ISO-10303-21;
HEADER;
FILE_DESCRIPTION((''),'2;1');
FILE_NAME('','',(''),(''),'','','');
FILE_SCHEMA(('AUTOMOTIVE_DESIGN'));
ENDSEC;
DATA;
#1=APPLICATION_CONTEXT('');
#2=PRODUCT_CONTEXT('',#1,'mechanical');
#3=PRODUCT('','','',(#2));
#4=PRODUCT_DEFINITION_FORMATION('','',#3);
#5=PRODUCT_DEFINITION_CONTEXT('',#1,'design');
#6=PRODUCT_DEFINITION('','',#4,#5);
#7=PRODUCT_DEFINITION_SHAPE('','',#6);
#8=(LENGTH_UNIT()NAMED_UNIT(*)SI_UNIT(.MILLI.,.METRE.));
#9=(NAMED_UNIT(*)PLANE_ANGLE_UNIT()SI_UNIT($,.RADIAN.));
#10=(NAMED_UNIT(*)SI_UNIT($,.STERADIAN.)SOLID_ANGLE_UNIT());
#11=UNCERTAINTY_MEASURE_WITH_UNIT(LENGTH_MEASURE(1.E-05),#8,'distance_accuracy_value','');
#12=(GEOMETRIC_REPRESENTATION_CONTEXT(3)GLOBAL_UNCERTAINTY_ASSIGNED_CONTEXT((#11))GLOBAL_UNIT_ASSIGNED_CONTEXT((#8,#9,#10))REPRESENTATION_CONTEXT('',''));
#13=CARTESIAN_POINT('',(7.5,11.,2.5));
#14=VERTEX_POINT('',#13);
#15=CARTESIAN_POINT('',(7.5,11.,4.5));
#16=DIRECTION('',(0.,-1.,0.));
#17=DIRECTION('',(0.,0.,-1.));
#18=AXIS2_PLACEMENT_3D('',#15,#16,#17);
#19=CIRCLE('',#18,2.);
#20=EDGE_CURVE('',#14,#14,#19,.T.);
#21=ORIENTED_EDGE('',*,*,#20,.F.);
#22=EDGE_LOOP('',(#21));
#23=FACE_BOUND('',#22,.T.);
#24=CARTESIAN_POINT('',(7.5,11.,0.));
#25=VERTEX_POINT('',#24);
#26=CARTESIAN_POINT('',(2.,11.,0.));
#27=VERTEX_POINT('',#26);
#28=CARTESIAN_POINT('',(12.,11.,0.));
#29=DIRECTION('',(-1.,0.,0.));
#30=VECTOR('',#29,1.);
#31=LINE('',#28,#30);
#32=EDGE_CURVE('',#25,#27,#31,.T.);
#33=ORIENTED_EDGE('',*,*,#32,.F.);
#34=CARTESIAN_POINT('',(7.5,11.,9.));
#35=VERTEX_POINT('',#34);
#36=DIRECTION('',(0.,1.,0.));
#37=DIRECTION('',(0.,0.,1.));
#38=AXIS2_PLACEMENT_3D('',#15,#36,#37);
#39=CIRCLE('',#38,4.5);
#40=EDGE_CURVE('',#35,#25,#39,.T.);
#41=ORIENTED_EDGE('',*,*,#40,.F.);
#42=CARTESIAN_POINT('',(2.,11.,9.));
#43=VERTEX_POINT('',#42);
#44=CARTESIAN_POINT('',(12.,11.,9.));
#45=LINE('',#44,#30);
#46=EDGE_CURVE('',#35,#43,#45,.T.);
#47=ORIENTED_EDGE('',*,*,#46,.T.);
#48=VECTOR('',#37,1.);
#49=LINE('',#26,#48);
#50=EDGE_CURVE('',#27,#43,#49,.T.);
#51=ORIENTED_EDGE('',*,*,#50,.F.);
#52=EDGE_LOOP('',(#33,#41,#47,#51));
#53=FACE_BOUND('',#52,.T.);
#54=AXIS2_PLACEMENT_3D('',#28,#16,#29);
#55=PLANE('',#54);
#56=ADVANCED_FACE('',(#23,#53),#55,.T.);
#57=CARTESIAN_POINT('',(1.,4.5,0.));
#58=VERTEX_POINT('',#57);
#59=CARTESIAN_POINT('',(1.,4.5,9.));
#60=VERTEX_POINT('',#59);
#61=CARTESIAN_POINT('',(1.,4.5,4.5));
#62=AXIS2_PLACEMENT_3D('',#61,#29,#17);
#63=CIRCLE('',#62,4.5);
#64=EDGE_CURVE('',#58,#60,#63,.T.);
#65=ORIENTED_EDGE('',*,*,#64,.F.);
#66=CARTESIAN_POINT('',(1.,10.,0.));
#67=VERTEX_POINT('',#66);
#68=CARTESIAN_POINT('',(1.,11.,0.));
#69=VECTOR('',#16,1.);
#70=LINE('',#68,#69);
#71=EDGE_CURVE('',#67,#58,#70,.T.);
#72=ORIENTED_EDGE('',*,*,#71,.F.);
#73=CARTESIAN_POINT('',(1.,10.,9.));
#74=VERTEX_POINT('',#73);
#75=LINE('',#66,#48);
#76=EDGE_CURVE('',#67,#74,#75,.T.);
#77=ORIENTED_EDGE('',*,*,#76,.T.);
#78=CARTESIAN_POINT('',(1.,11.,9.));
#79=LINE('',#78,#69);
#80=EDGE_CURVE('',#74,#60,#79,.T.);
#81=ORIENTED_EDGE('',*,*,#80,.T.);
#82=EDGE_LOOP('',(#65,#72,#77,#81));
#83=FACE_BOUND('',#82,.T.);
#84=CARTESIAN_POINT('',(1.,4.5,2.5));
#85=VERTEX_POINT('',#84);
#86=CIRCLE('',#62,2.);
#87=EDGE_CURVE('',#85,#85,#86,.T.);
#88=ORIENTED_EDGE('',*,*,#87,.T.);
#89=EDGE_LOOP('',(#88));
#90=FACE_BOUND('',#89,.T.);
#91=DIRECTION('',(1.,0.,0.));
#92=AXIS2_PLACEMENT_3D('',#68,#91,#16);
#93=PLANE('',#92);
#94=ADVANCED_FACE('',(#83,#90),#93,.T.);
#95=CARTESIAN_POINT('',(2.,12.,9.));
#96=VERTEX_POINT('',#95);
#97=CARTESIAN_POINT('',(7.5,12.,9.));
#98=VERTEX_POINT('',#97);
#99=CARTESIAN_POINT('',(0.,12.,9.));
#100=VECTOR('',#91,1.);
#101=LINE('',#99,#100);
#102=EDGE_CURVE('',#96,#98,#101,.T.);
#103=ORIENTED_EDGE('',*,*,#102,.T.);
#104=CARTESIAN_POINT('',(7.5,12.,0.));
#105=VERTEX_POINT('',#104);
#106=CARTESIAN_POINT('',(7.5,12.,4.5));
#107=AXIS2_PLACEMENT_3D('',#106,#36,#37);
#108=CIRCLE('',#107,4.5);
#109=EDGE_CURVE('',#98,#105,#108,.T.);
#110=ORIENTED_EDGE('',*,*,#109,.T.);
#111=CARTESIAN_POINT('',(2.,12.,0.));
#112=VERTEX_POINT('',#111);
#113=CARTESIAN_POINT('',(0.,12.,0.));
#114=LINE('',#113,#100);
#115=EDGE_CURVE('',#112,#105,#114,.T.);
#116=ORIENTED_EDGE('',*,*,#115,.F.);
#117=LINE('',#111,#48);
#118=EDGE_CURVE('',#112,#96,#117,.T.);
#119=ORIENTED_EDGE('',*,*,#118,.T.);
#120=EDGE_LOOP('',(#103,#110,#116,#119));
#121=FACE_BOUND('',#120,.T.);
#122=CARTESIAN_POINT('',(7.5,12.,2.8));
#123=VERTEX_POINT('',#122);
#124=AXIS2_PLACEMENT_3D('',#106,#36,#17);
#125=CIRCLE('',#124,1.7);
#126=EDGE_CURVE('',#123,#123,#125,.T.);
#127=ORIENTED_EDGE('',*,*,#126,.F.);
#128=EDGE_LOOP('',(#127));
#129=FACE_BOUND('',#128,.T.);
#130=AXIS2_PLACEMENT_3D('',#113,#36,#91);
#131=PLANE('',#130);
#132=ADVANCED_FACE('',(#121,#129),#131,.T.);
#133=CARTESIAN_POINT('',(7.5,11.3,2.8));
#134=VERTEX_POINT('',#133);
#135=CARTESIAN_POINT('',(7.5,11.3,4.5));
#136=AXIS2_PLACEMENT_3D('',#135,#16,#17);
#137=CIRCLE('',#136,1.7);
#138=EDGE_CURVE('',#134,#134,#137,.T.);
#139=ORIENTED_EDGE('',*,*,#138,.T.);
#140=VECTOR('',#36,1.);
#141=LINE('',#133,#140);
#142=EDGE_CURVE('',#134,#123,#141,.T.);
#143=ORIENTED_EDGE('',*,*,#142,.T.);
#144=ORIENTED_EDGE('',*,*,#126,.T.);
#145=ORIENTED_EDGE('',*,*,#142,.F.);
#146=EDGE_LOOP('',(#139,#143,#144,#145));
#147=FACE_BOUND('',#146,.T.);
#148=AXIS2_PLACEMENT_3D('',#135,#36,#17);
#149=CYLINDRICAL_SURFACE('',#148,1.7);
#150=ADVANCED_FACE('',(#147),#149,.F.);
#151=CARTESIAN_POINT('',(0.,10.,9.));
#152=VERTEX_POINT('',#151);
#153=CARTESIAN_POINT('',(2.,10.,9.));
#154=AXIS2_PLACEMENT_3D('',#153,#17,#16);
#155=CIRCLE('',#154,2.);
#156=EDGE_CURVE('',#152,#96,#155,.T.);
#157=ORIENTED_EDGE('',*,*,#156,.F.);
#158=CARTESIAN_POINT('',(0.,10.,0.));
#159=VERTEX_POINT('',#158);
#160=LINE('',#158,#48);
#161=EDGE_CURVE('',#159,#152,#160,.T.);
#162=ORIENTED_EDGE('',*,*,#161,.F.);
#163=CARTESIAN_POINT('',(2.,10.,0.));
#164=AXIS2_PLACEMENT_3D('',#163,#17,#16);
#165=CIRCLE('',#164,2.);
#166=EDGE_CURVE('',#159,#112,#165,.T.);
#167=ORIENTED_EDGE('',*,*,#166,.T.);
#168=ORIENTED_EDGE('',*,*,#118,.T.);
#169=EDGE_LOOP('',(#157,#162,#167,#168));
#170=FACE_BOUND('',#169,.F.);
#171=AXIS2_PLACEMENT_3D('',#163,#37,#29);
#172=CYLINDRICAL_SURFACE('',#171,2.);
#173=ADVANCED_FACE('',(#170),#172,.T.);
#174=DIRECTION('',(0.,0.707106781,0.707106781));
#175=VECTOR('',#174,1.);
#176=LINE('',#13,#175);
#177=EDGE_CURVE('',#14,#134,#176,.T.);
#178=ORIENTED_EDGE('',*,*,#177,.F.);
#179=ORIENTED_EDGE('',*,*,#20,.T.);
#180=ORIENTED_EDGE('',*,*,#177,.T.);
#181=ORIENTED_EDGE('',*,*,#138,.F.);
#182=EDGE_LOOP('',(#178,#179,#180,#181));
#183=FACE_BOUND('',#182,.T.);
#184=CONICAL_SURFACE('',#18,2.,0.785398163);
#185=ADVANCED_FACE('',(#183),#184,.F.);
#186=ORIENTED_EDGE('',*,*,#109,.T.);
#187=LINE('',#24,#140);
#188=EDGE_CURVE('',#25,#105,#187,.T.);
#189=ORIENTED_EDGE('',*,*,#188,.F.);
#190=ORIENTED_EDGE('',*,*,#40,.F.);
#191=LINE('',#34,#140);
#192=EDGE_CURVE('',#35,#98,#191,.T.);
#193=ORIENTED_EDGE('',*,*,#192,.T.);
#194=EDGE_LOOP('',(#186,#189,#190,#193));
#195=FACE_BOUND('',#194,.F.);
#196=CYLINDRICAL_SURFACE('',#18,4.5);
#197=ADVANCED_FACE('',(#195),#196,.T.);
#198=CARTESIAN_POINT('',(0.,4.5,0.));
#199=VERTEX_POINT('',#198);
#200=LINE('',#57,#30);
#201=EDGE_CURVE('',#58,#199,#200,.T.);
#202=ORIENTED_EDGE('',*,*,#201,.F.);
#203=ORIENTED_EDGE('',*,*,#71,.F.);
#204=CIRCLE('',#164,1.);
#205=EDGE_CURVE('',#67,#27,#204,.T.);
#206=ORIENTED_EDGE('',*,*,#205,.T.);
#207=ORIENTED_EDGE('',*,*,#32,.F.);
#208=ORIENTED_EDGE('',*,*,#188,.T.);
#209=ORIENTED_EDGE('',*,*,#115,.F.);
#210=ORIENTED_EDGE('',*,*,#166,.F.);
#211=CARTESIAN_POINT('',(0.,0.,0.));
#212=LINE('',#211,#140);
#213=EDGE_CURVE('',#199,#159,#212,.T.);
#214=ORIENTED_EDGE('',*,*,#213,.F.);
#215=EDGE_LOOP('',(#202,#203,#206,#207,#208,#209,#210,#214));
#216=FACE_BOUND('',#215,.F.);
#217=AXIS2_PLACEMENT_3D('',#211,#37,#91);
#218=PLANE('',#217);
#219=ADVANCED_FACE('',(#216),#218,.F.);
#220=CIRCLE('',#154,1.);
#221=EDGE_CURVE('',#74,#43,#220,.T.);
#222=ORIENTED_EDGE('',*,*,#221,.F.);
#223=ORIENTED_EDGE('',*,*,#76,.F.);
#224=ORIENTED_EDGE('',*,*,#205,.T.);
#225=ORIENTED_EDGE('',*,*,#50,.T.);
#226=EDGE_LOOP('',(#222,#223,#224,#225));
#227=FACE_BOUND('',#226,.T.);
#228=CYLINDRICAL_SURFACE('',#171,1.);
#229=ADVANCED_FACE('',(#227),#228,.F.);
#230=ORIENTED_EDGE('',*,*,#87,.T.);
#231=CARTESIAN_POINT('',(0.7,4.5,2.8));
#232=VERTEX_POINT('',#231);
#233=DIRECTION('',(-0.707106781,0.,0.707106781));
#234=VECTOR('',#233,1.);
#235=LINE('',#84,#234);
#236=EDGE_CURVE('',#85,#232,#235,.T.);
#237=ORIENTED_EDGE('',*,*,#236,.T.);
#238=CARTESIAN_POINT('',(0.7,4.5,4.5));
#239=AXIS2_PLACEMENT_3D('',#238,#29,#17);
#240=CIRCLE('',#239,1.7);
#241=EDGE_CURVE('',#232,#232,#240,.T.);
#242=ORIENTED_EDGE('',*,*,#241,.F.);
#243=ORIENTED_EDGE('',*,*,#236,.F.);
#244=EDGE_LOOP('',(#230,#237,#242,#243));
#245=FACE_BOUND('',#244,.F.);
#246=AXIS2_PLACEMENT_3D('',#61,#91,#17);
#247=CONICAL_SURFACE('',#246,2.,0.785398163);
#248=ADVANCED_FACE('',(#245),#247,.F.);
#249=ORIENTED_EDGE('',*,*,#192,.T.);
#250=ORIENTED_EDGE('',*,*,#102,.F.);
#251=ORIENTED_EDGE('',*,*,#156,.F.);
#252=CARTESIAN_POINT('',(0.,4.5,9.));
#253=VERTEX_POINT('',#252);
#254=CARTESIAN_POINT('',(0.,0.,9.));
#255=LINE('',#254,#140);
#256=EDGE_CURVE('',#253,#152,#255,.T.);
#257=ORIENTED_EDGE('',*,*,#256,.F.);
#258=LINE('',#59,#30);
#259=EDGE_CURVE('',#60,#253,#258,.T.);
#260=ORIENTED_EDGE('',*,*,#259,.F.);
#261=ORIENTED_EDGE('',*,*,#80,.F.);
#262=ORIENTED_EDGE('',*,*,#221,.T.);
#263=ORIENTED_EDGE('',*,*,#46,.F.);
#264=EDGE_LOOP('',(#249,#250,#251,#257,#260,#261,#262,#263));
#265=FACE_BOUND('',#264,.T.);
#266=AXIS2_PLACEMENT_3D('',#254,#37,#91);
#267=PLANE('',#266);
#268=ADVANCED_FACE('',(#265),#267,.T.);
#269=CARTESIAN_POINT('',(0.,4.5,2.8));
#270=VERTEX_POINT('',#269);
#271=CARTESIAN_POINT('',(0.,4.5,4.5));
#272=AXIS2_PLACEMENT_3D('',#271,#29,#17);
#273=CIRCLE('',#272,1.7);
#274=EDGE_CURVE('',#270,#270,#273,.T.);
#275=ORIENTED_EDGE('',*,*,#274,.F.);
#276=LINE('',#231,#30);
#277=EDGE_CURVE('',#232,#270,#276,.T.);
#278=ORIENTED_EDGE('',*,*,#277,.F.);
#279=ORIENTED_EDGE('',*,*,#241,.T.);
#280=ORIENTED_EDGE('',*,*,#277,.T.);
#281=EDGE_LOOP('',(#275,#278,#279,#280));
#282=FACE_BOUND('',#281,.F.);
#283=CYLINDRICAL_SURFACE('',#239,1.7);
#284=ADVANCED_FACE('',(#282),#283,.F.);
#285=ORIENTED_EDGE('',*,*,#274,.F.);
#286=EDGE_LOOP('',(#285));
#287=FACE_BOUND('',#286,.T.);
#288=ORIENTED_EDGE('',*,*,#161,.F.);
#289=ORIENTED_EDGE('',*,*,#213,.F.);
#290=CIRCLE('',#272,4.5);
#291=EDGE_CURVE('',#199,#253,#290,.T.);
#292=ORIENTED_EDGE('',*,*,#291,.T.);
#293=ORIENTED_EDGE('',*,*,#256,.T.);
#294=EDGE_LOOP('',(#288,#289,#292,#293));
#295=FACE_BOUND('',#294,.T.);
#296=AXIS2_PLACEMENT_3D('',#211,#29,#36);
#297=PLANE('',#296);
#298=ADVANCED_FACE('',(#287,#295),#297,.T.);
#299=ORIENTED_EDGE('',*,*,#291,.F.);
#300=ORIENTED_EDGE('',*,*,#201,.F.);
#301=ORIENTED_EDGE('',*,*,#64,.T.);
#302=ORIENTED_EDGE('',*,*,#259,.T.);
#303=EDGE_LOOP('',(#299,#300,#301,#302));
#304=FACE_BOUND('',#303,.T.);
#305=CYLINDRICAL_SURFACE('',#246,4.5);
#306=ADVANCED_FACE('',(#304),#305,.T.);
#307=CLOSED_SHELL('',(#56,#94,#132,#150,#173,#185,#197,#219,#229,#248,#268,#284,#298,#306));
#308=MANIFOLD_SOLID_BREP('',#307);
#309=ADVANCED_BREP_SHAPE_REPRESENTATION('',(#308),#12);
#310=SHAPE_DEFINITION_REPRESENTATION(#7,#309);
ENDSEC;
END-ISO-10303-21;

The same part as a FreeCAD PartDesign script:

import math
import FreeCAD as App
import Part
import Sketcher


def edges_at(feature, points):
    """Names of the edges that pass closest to the given points."""
    edges = feature.Shape.Edges
    near = lambda p: min(range(len(edges)), key=lambda i: edges[i].distToShape(Part.Vertex(*p))[0])
    return sorted({f"Edge{near(p) + 1}" for p in points})

doc = App.newDocument("Part")
params = doc.addObject("Spreadsheet::Sheet", "Params")
for row, (alias, value) in enumerate([
    ("sketch1_width", "1 mm"),
    ("sketch1_width2", "12 mm"),
    ("pad1_length", "9 mm"),
    ("sketch2_diameter", "3.4 mm"),
    ("hole_diameter", "3.4 mm"),
    ("hole_csink_diameter", "4 mm"),
    ("sketch3_radius", "4.5 mm"),
    ("pocket1_length", "16.002 mm"),
    ("fillet_radius", "2 mm"),
    ("fillet2_radius", "1 mm"),
], start=1):
    params.set(f"A{row}", alias)
    params.set(f"B{row}", "=" + value)
    params.setAlias(f"B{row}", alias)

body = doc.addObject("PartDesign::Body", "Body")

sketch1 = body.newObject("Sketcher::SketchObject", "Sketch")
sketch1.AttachmentSupport = (doc.getObject("XY_Plane"), [""])
sketch1.MapMode = "FlatFace"
sketch1.addGeometry(Part.LineSegment(App.Vector(0, 12, 0), App.Vector(0, 0, 0)), False)
sketch1.addGeometry(Part.LineSegment(App.Vector(0, 0, 0), App.Vector(1, 0, 0)), False)
sketch1.addGeometry(Part.LineSegment(App.Vector(1, 0, 0), App.Vector(1, 11, 0)), False)
sketch1.addGeometry(Part.LineSegment(App.Vector(1, 11, 0), App.Vector(12, 11, 0)), False)
sketch1.addGeometry(Part.LineSegment(App.Vector(12, 11, 0), App.Vector(12, 12, 0)), False)
sketch1.addGeometry(Part.LineSegment(App.Vector(12, 12, 0), App.Vector(0, 12, 0)), False)
sketch1.addConstraint(Sketcher.Constraint("Coincident", 0, 2, 1, 1))
sketch1.addConstraint(Sketcher.Constraint("Coincident", 1, 2, 2, 1))
sketch1.addConstraint(Sketcher.Constraint("Coincident", 2, 2, 3, 1))
sketch1.addConstraint(Sketcher.Constraint("Coincident", 3, 2, 4, 1))
sketch1.addConstraint(Sketcher.Constraint("Coincident", 4, 2, 5, 1))
sketch1.addConstraint(Sketcher.Constraint("Coincident", 5, 2, 0, 1))
sketch1.addConstraint(Sketcher.Constraint("Vertical", 0))
sketch1.addConstraint(Sketcher.Constraint("Horizontal", 1))
sketch1.addConstraint(Sketcher.Constraint("Vertical", 2))
sketch1.addConstraint(Sketcher.Constraint("Horizontal", 3))
sketch1.addConstraint(Sketcher.Constraint("Vertical", 4))
sketch1.addConstraint(Sketcher.Constraint("Horizontal", 5))
sketch1.addConstraint(Sketcher.Constraint("Coincident", 0, 2, -1, 1))
sketch1.addConstraint(Sketcher.Constraint("Equal", 5, 0))
sketch1.addConstraint(Sketcher.Constraint("Equal", 3, 2))
sketch1.addConstraint(Sketcher.Constraint("DistanceX", 1, 1, 1, 2, 1.0))
sketch1.addConstraint(Sketcher.Constraint("DistanceX", 5, 2, 5, 1, 12.0))
sketch1.setExpression("Constraints[15]", "Params.sketch1_width")
sketch1.setExpression("Constraints[16]", "Params.sketch1_width2")
pad1 = body.newObject("PartDesign::Pad", "Pad")
pad1.Profile = sketch1
pad1.setExpression("Length", "Params.pad1_length")

sketch2 = body.newObject("Sketcher::SketchObject", "Sketch001")
sketch2.AttachmentSupport = (doc.getObject("YZ_Plane"), [""])
sketch2.MapMode = "FlatFace"
sketch2.AttachmentOffset = App.Placement(App.Vector(0, 0, 1), App.Rotation())
sketch2.addGeometry(Part.Circle(App.Vector(4.5, 4.5, 0), App.Vector(0, 0, 1), 1.7), False)
sketch2.addConstraint(Sketcher.Constraint("Diameter", 0, 3.4))
sketch2.addConstraint(Sketcher.Constraint("DistanceX", -1, 1, 0, 3, 4.5))
sketch2.addConstraint(Sketcher.Constraint("DistanceY", -1, 1, 0, 3, 4.5))
sketch2.setExpression("Constraints[0]", "Params.sketch2_diameter")
doc.recompute()
hole = body.newObject("PartDesign::Hole", "Hole")
hole.Profile = sketch2
hole.ThreadType = "None"
hole.setExpression("Diameter", "Params.hole_diameter")
hole.DepthType = "ThroughAll"
hole.HoleCutType = "Countersink"
hole.setExpression("HoleCutDiameter", "Params.hole_csink_diameter")
hole.HoleCutCountersinkAngle = 90

sketch3 = body.newObject("Sketcher::SketchObject", "Sketch002")
sketch3.AttachmentSupport = (doc.getObject("YZ_Plane"), [""])
sketch3.MapMode = "FlatFace"
sketch3.AttachmentOffset = App.Placement(App.Vector(0, 0, 1), App.Rotation())
sketch3.addGeometry(Part.LineSegment(App.Vector(0, 4.5, 0), App.Vector(0, 0, 0)), False)
sketch3.addGeometry(Part.LineSegment(App.Vector(0, 0, 0), App.Vector(4.5, 0, 0)), False)
sketch3.addGeometry(Part.ArcOfCircle(Part.Circle(App.Vector(4.5, 4.5, 0), App.Vector(0, 0, 1), 4.5), math.radians(180), math.radians(270)), False)
sketch3.addGeometry(Part.LineSegment(App.Vector(0, 9, 0), App.Vector(0, 4.5, 0)), False)
sketch3.addGeometry(Part.ArcOfCircle(Part.Circle(App.Vector(4.5, 4.5, 0), App.Vector(0, 0, 1), 4.5), math.radians(90), math.radians(180)), False)
sketch3.addGeometry(Part.LineSegment(App.Vector(4.5, 9, 0), App.Vector(0, 9, 0)), False)
sketch3.addConstraint(Sketcher.Constraint("Coincident", 0, 2, 1, 1))
sketch3.addConstraint(Sketcher.Constraint("Tangent", 1, 2, 2, 2))
sketch3.addConstraint(Sketcher.Constraint("Tangent", 2, 1, 0, 1))
sketch3.addConstraint(Sketcher.Constraint("Tangent", 3, 2, 4, 2))
sketch3.addConstraint(Sketcher.Constraint("Tangent", 4, 1, 5, 1))
sketch3.addConstraint(Sketcher.Constraint("Coincident", 5, 2, 3, 1))
sketch3.addConstraint(Sketcher.Constraint("Vertical", 0))
sketch3.addConstraint(Sketcher.Constraint("Horizontal", 1))
sketch3.addConstraint(Sketcher.Constraint("Vertical", 3))
sketch3.addConstraint(Sketcher.Constraint("Horizontal", 5))
sketch3.addConstraint(Sketcher.Constraint("Coincident", 0, 2, -1, 1))
sketch3.addConstraint(Sketcher.Constraint("Coincident", 4, 3, 2, 3))
sketch3.addConstraint(Sketcher.Constraint("Equal", 2, 4))
sketch3.addConstraint(Sketcher.Constraint("Radius", 2, 4.5))
sketch3.setExpression("Constraints[13]", "Params.sketch3_radius")
pocket1 = body.newObject("PartDesign::Pocket", "Pocket")
pocket1.Profile = sketch3
pocket1.setExpression("Length", "Params.pocket1_length")
doc.recompute()

datumplane = body.newObject("PartDesign::Plane", "DatumPlane")
datumplane.Placement = App.Placement(App.Vector(6, 6, 0), App.Rotation(App.Vector(-0.707106781, 0.707106781, 0), App.Vector(0, 0, -1), App.Vector(-0.707106781, -0.707106781, 0), "ZXY"))
mirrored = body.newObject("PartDesign::Mirrored", "Mirrored")
mirrored.Originals = [pocket1, hole]
mirrored.MirrorPlane = (datumplane, [""])
body.Tip = mirrored
doc.recompute()

fillet = body.newObject("PartDesign::Fillet", "Fillet")
fillet.Base = (mirrored, edges_at(mirrored, [(0, 12, 4.5)]))
fillet.setExpression("Radius", "Params.fillet_radius")
doc.recompute()

fillet2 = body.newObject("PartDesign::Fillet", "Fillet001")
fillet2.Base = (fillet, edges_at(fillet, [(1, 11, 4.5)]))
fillet2.setExpression("Radius", "Params.fillet2_radius")

doc.recompute()
